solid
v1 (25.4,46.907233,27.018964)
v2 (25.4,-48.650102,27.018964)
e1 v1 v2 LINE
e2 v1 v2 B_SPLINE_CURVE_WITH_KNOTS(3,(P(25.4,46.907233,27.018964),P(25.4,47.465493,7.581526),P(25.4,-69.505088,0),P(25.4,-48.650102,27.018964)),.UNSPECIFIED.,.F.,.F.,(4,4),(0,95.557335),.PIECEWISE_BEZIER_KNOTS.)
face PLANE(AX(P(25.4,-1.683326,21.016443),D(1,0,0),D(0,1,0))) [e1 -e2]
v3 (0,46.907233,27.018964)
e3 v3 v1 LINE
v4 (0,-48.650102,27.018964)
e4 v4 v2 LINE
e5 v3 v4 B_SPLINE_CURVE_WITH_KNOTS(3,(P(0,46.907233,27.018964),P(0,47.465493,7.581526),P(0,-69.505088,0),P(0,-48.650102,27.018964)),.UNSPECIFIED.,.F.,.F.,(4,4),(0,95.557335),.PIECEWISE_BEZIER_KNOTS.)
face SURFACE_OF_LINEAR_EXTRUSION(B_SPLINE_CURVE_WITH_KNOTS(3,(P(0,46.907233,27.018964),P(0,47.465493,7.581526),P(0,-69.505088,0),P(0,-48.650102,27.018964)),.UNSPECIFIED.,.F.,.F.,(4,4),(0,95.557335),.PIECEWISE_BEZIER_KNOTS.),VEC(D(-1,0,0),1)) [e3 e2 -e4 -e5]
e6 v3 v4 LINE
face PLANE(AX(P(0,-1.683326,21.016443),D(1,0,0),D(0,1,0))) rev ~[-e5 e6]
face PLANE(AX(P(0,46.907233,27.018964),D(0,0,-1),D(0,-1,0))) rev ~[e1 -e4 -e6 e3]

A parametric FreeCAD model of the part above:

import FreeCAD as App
import Part
import Sketcher
from FreeCAD import Vector

doc = App.newDocument("Part")
params = doc.addObject("Spreadsheet::Sheet", "Params")
for row, (alias, value) in enumerate([
    ("pad1_length", "1 in"),
], start=1):
    params.set(f"A{row}", alias)
    params.set(f"B{row}", "=" + value)
    params.setAlias(f"B{row}", alias)

body = doc.addObject("PartDesign::Body", "Body")

# Sketch on YZ plane
sketch1 = doc.addObject("Sketcher::SketchObject", "Sketch")
body.addObject(sketch1)
sketch1.AttachmentSupport = (doc.YZ_Plane, [""])
sketch1.MapMode = "FlatFace"
sketch1.addGeometry([
    Part.LineSegment(Vector(46.907233, 27.018964, 0), Vector(-48.650102, 27.018964, 0)),
    Part.BSplineCurve([Vector(46.907233, 27.018964, 0), Vector(47.465493, 7.581526, 0), Vector(-69.505088, 0, 0), Vector(-48.650102, 27.018964, 0)], [4, 4], [0, 95.557335], False, 3, [1, 1, 1, 1], False),
], False)
sketch1.addConstraint([
    Sketcher.Constraint("Block", 1),
    Sketcher.Constraint("Coincident", 0, 1, 1, 1),
    Sketcher.Constraint("Coincident", 1, 2, 0, 2),
])
pad1 = doc.addObject("PartDesign::Pad", "Pad")
body.addObject(pad1)
pad1.Profile = sketch1
pad1.setExpression("Length", "Params.pad1_length")

doc.recompute()
